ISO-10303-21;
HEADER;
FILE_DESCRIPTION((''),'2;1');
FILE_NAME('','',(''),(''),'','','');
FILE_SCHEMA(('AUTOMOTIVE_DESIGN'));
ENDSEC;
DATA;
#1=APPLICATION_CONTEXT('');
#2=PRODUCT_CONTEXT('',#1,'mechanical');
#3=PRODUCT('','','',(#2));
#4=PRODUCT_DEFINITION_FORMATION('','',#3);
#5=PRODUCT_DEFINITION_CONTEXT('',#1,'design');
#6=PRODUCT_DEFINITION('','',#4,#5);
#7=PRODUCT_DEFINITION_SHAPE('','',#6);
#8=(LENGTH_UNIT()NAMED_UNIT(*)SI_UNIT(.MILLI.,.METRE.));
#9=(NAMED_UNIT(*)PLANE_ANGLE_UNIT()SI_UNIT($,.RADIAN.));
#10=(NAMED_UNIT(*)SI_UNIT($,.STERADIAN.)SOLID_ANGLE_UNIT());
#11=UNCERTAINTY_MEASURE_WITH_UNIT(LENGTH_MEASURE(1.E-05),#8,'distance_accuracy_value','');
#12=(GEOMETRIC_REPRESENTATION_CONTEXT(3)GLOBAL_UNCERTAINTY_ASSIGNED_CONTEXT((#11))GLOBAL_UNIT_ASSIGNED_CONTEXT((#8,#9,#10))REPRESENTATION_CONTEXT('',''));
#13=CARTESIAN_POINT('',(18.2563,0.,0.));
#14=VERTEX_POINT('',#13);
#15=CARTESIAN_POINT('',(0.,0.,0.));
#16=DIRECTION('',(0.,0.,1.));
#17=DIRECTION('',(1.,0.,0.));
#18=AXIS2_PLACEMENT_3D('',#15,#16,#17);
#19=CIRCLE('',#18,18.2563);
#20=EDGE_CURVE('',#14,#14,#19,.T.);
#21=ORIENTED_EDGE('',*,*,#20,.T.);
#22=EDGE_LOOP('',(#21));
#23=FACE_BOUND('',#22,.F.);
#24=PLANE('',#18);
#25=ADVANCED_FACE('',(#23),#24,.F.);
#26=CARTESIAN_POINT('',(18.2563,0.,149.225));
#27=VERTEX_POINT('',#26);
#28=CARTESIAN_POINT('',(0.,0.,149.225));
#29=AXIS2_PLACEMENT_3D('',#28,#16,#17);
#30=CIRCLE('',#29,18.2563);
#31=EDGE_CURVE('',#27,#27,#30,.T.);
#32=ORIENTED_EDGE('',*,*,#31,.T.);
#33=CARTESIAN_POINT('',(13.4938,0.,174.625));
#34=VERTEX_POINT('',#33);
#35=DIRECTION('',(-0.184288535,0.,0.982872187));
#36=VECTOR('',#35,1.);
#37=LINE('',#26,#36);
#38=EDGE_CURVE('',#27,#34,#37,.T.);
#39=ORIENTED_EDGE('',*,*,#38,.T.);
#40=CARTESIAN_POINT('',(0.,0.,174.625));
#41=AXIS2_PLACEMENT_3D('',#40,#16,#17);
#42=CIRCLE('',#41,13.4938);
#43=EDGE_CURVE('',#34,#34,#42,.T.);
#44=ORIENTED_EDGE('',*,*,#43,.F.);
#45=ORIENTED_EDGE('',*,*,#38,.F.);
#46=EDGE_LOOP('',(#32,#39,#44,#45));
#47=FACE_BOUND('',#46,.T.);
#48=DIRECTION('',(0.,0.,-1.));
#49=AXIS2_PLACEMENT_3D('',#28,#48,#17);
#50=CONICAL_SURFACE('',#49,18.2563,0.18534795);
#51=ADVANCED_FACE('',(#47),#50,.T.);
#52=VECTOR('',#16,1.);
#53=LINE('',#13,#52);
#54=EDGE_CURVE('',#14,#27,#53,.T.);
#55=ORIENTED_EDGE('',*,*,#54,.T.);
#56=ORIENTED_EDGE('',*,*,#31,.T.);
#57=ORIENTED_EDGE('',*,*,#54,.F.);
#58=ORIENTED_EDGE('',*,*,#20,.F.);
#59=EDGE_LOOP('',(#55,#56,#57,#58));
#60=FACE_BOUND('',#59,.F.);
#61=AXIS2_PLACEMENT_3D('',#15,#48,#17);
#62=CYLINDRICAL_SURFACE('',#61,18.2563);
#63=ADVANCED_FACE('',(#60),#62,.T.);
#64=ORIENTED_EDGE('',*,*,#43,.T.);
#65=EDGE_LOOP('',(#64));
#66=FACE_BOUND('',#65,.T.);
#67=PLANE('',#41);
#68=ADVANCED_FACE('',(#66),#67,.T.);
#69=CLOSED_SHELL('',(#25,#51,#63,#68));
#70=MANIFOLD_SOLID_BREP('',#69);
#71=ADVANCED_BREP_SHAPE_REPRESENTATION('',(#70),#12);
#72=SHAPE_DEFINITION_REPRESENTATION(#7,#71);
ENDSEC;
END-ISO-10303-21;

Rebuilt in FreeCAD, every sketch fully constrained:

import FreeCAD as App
import Part
import Sketcher

V = App.Vector
Q = App.Units.Quantity


def edges_at(feature, points):
    """Names of the edges that pass closest to the given points."""
    edges = feature.Shape.Edges
    near = lambda p: min(range(len(edges)), key=lambda i: edges[i].distToShape(Part.Vertex(*p))[0])
    return sorted({f"Edge{near(p) + 1}" for p in points})

doc = App.newDocument("Part")
body = doc.addObject("PartDesign::Body", "Body")

sketch1 = doc.addObject("Sketcher::SketchObject", "Sketch")
body.addObject(sketch1)
sketch1.AttachmentSupport = (doc.XY_Plane, [""])
sketch1.MapMode = "FlatFace"
sketch1.addGeometry(Part.Circle(V(0, 0, 0), V(0, 0, 1), 18), False)
sketch1.addConstraint(Sketcher.Constraint("Coincident", 0, 3, -1, 1))
sketch1.addConstraint(Sketcher.Constraint("Diameter", 0, Q("1.4375 in")))
pad1 = doc.addObject("PartDesign::Pad", "Pad")
body.addObject(pad1)
pad1.Profile = sketch1
pad1.Length = Q("6.875 in")
doc.recompute()

chamfer = doc.addObject("PartDesign::Chamfer", "Chamfer")
body.addObject(chamfer)
chamfer.Base = (pad1, edges_at(pad1, [(-18.256, 0, 174.625)]))
chamfer.ChamferType = "Two distances"
chamfer.Size = Q("1 in")
chamfer.Size2 = Q("0.1875 in")

doc.recompute()
